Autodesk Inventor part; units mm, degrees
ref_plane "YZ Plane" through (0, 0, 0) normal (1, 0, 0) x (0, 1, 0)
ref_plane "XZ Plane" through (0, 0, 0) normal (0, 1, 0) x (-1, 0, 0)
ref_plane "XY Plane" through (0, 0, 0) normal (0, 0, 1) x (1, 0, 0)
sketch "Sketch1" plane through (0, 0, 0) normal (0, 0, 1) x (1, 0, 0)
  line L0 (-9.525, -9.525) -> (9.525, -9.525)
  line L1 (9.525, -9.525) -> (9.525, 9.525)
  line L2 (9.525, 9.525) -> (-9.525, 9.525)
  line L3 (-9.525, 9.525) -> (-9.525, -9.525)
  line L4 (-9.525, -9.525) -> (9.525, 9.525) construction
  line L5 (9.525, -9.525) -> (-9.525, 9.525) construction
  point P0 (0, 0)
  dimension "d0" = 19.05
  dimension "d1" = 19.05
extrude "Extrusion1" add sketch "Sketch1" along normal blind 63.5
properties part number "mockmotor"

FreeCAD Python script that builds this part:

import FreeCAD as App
import Part
import Sketcher

V = App.Vector
Q = App.Units.Quantity

doc = App.newDocument("Part")
body = doc.addObject("PartDesign::Body", "Body")

# Sketch on XY plane
sketch1 = doc.addObject("Sketcher::SketchObject", "Sketch")
body.addObject(sketch1)
sketch1.AttachmentSupport = (doc.XY_Plane, [""])
sketch1.MapMode = "FlatFace"
sketch1.addGeometry([
    Part.LineSegment(V(-10, 10, 0), V(-10, -10, 0)),
    Part.LineSegment(V(-10, -10, 0), V(10, -10, 0)),
    Part.LineSegment(V(10, -10, 0), V(10, 10, 0)),
    Part.LineSegment(V(10, 10, 0), V(-10, 10, 0)),
], False)
sketch1.addConstraint([
    Sketcher.Constraint("Coincident", 0, 2, 1, 1),
    Sketcher.Constraint("Coincident", 1, 2, 2, 1),
    Sketcher.Constraint("Coincident", 2, 2, 3, 1),
    Sketcher.Constraint("Coincident", 3, 2, 0, 1),
    Sketcher.Constraint("Vertical", 0),
    Sketcher.Constraint("Horizontal", 1),
    Sketcher.Constraint("Vertical", 2),
    Sketcher.Constraint("Horizontal", 3),
    Sketcher.Constraint("Symmetric", 0, 2, 2, 2, -1, 1),
    Sketcher.Constraint("Equal", 3, 0),
    Sketcher.Constraint("DistanceX", 1, 1, 1, 2, Q("0.75 in")),
])
pad1 = doc.addObject("PartDesign::Pad", "Pad")
body.addObject(pad1)
pad1.Profile = sketch1
pad1.Length = Q("2.5 in")

doc.recompute()
